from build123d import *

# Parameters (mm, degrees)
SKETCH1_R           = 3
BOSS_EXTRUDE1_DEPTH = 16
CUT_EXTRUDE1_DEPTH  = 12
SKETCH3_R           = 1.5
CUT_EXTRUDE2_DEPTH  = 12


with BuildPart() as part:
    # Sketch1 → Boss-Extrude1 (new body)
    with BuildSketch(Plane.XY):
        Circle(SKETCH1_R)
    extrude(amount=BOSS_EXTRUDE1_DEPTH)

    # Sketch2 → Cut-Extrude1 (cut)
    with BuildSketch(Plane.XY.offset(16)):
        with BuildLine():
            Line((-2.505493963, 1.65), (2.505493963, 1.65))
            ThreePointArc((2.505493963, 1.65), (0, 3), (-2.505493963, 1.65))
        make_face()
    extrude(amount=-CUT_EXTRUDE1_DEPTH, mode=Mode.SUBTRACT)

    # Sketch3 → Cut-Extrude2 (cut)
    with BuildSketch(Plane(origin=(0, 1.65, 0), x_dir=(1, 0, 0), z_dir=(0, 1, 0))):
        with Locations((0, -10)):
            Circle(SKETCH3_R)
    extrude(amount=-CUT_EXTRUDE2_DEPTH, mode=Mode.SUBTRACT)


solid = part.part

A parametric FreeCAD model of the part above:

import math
import FreeCAD as App
import Part
import Sketcher

doc = App.newDocument("Part")
body = doc.addObject("PartDesign::Body", "Body")

sketch1 = doc.addObject("Sketcher::SketchObject", "Sketch")
body.addObject(sketch1)
sketch1.AttachmentSupport = (doc.XY_Plane, [""])
sketch1.MapMode = "FlatFace"
sketch1.addGeometry(Part.Circle(App.Vector(0, 0, 0), App.Vector(0, 0, 1), 3), False)
sketch1.addConstraint([
    Sketcher.Constraint("Coincident", 0, 3, -1, 1),
    Sketcher.Constraint("Diameter", 0, 6.0),
])
pad1 = doc.addObject("PartDesign::Pad", "Pad")
body.addObject(pad1)
pad1.Profile = sketch1
pad1.Length = 16

sketch2 = doc.addObject("Sketcher::SketchObject", "Sketch001")
body.addObject(sketch2)
sketch2.AttachmentSupport = (doc.XY_Plane, [""])
sketch2.MapMode = "FlatFace"
sketch2.AttachmentOffset = App.Placement(App.Vector(0, 0, 16), App.Rotation())
sketch2.addGeometry([
    Part.LineSegment(App.Vector(-2.505494, 1.65, 0), App.Vector(2.505494, 1.65, 0)),
    Part.ArcOfCircle(Part.Circle(App.Vector(0, 0, 0), App.Vector(0, 0, 1), 3), math.radians(33.367013), math.radians(146.632987)),
], False)
sketch2.addConstraint([
    Sketcher.Constraint("Coincident", 0, 1, 1, 2),
    Sketcher.Constraint("Coincident", 1, 1, 0, 2),
    Sketcher.Constraint("Horizontal", 0),
    Sketcher.Constraint("Coincident", 1, 3, -1, 1),
    Sketcher.Constraint("Radius", 1, 3.0),
    Sketcher.Constraint("DistanceY", -1, 1, 0, 1, 1.65),
])
pocket1 = doc.addObject("PartDesign::Pocket", "Pocket")
body.addObject(pocket1)
pocket1.Profile = sketch2
pocket1.Length = 12

sketch3 = doc.addObject("Sketcher::SketchObject", "Sketch002")
body.addObject(sketch3)
sketch3.AttachmentSupport = (doc.XZ_Plane, [""])
sketch3.MapMode = "FlatFace"
sketch3.AttachmentOffset = App.Placement(App.Vector(0, 0, -1.65), App.Rotation())
sketch3.addGeometry(Part.Circle(App.Vector(0, 10, 0), App.Vector(0, 0, 1), 1.5), False)
sketch3.addConstraint([
    Sketcher.Constraint("PointOnObject", 0, 3, -2),
    Sketcher.Constraint("Diameter", 0, 3.0),
    Sketcher.Constraint("DistanceY", -1, 1, 0, 3, 10.0),
])
pocket2 = doc.addObject("PartDesign::Pocket", "Pocket001")
body.addObject(pocket2)
pocket2.Profile = sketch3
pocket2.Length = 12
pocket2.Reversed = True

doc.recompute()
